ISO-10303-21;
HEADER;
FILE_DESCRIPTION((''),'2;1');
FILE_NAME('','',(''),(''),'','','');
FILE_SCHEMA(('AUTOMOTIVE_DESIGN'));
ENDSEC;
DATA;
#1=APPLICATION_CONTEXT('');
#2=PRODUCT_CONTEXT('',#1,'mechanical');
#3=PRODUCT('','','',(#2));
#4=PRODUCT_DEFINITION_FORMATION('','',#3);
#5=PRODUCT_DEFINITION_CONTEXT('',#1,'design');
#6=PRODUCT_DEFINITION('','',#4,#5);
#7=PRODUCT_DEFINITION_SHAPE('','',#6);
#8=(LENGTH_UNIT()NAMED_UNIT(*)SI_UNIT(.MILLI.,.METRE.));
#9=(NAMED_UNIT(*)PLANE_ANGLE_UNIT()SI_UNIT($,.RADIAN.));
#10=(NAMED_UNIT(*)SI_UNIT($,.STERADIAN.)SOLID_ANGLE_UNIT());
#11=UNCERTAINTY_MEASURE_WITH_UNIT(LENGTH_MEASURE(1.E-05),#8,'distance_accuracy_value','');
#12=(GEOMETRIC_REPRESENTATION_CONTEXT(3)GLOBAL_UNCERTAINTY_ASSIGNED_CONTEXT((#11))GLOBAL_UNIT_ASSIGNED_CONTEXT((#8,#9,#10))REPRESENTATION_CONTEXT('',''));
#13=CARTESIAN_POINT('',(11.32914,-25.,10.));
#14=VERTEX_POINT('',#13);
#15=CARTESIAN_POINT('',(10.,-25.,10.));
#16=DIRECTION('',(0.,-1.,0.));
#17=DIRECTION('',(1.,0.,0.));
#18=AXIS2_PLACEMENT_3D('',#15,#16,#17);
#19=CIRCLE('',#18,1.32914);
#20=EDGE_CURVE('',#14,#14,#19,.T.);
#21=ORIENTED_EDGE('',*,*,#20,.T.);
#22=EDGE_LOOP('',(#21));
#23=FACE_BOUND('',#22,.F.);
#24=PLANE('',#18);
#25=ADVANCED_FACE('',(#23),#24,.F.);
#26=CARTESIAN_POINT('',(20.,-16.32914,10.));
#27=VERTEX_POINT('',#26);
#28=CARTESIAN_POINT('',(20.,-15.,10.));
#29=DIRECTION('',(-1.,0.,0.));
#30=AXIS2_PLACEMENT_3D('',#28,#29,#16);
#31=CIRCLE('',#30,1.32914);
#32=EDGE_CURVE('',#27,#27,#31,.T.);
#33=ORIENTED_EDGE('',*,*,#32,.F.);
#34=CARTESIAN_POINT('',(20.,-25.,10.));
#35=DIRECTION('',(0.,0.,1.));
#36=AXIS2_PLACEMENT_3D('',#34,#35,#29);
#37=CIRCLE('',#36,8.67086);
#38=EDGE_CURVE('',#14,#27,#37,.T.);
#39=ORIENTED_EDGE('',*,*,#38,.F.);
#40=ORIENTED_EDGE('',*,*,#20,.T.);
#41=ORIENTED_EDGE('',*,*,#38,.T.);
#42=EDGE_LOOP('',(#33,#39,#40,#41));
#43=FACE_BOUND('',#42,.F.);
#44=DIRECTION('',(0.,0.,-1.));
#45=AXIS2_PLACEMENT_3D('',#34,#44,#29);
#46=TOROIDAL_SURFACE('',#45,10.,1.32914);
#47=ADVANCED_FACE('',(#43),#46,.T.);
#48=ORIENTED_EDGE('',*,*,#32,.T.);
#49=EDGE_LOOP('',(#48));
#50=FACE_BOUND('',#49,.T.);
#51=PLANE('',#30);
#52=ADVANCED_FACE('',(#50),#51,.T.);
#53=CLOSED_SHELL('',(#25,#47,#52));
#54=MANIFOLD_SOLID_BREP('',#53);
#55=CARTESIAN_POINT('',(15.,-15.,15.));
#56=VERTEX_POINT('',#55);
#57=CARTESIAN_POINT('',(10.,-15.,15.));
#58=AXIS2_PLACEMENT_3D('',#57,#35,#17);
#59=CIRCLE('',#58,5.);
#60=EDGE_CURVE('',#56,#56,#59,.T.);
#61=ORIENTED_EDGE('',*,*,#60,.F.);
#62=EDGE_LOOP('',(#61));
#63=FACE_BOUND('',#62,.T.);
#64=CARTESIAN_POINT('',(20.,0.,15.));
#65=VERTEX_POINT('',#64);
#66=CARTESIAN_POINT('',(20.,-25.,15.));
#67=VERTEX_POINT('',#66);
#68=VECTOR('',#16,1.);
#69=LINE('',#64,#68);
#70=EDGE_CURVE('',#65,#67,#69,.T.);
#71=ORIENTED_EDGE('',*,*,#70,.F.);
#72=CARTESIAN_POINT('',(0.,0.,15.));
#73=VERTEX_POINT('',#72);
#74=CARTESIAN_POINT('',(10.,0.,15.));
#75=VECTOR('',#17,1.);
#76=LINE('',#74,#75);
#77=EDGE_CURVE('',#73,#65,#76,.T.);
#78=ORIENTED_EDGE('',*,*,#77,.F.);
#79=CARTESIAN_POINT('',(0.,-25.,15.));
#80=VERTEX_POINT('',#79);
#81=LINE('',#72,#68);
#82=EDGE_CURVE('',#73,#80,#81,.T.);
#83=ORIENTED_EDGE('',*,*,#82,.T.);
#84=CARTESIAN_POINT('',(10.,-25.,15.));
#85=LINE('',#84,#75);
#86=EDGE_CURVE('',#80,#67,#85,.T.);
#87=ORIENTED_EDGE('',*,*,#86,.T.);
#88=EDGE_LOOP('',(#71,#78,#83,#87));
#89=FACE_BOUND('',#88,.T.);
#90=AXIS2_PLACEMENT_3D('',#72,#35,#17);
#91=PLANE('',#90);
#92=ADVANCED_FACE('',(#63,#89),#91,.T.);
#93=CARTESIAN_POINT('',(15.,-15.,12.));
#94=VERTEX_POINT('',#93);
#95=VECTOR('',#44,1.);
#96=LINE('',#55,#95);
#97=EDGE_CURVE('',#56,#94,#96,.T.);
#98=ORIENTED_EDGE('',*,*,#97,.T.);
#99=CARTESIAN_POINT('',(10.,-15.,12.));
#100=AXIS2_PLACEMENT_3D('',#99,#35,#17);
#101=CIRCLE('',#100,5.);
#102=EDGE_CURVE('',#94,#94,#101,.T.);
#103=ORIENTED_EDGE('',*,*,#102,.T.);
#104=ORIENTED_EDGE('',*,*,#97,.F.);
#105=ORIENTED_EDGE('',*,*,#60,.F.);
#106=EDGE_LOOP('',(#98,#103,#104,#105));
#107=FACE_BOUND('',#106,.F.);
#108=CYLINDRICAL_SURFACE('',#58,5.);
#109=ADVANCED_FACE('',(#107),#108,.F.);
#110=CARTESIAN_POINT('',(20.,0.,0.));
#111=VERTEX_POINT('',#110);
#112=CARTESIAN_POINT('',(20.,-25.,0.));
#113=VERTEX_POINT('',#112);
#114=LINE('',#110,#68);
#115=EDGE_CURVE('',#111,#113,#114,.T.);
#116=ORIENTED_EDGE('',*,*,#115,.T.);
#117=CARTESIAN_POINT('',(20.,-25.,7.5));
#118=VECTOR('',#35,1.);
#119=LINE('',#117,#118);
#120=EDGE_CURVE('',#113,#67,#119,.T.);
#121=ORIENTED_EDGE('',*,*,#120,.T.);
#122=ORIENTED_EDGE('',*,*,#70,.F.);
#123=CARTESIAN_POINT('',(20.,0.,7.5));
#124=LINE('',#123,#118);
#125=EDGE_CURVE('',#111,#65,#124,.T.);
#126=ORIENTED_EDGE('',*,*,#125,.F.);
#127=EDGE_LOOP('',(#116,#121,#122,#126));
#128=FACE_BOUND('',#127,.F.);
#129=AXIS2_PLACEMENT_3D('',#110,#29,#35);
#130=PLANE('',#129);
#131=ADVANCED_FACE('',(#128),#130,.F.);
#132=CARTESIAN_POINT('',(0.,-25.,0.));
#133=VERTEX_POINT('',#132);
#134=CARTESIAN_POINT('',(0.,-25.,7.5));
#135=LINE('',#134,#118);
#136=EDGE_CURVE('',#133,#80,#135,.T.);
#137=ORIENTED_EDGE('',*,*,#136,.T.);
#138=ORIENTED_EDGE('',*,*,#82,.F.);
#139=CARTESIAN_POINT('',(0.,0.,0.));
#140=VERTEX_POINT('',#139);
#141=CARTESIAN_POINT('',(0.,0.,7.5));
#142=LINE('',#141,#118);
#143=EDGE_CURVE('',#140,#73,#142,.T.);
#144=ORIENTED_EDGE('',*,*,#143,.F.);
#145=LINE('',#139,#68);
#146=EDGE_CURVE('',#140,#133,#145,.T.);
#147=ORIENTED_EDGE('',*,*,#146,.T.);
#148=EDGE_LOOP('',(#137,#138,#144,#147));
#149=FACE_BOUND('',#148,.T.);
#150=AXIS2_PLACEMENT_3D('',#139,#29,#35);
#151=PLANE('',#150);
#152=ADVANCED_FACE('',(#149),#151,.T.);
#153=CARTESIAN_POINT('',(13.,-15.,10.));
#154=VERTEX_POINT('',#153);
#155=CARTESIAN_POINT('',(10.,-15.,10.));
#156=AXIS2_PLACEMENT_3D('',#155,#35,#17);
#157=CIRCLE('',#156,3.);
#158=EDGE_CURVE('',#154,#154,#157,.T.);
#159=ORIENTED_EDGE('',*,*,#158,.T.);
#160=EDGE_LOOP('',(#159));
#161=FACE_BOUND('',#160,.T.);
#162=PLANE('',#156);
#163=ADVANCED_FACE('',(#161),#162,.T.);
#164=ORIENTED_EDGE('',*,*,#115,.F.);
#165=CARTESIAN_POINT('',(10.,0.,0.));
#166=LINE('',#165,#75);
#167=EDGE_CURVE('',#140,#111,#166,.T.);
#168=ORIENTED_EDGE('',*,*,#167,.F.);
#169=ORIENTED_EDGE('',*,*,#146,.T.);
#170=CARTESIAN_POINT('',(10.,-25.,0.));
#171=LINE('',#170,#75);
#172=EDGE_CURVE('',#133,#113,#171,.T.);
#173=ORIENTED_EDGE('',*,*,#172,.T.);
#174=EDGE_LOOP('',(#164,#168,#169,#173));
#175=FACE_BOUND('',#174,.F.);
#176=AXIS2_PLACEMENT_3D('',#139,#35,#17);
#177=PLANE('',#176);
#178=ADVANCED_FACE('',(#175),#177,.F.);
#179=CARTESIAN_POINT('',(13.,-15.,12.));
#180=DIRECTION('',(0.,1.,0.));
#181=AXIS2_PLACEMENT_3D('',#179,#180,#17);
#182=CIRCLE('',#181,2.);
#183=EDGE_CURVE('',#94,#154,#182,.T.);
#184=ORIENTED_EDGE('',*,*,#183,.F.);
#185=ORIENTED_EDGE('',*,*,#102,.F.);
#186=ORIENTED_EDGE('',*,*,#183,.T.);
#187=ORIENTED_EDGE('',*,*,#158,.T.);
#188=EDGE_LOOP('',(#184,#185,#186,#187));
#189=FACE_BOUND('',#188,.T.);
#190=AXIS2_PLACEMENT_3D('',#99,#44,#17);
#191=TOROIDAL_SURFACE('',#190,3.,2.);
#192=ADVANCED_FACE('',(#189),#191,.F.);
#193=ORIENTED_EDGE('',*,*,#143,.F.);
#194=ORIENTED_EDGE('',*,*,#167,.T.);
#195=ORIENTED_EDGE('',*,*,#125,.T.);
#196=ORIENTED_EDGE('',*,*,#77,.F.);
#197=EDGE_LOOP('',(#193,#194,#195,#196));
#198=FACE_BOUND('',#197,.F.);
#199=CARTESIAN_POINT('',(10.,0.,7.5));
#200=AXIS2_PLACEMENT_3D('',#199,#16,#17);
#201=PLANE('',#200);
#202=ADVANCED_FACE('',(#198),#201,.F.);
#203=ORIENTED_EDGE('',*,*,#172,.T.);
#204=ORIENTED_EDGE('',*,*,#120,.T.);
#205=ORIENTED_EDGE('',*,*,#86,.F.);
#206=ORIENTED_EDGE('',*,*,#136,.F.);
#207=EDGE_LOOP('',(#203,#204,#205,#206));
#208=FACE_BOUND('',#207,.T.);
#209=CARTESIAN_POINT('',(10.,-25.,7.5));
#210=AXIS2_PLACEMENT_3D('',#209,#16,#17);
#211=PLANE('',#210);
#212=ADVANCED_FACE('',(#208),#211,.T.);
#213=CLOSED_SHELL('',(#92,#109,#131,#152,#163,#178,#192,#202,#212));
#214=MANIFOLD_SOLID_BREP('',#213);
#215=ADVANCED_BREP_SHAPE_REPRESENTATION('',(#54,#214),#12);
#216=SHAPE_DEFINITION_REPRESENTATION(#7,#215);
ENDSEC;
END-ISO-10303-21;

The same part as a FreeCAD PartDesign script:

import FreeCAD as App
import Part
import Sketcher

V = App.Vector
Q = App.Units.Quantity


def edges_at(feature, points):
    """Names of the edges that pass closest to the given points."""
    edges = feature.Shape.Edges
    near = lambda p: min(range(len(edges)), key=lambda i: edges[i].distToShape(Part.Vertex(*p))[0])
    return sorted({f"Edge{near(p) + 1}" for p in points})

doc = App.newDocument("Part")
body = doc.addObject("PartDesign::Body", "Body")

sketch1 = doc.addObject("Sketcher::SketchObject", "Sketch")
body.addObject(sketch1)
sketch1.AttachmentSupport = (doc.XZ_Plane, [""])
sketch1.MapMode = "FlatFace"
sketch1.addGeometry(Part.LineSegment(V(0, 15, 0), V(0, 0, 0)), False)
sketch1.addGeometry(Part.LineSegment(V(0, 0, 0), V(20, 0, 0)), False)
sketch1.addGeometry(Part.LineSegment(V(20, 0, 0), V(20, 15, 0)), False)
sketch1.addGeometry(Part.LineSegment(V(20, 15, 0), V(0, 15, 0)), False)
sketch1.addConstraint(Sketcher.Constraint("Coincident", 0, 2, 1, 1))
sketch1.addConstraint(Sketcher.Constraint("Coincident", 1, 2, 2, 1))
sketch1.addConstraint(Sketcher.Constraint("Coincident", 2, 2, 3, 1))
sketch1.addConstraint(Sketcher.Constraint("Coincident", 3, 2, 0, 1))
sketch1.addConstraint(Sketcher.Constraint("Vertical", 0))
sketch1.addConstraint(Sketcher.Constraint("Horizontal", 1))
sketch1.addConstraint(Sketcher.Constraint("Vertical", 2))
sketch1.addConstraint(Sketcher.Constraint("Horizontal", 3))
sketch1.addConstraint(Sketcher.Constraint("Coincident", 0, 2, -1, 1))
sketch1.addConstraint(Sketcher.Constraint("DistanceX", 1, 1, 1, 2, Q("20 mm")))
sketch1.addConstraint(Sketcher.Constraint("DistanceY", 0, 2, 0, 1, Q("15 mm")))
pad1 = doc.addObject("PartDesign::Pad", "Pad")
body.addObject(pad1)
pad1.Profile = sketch1
pad1.Length = 25

sketch2 = doc.addObject("Sketcher::SketchObject", "Sketch001")
body.addObject(sketch2)
sketch2.AttachmentSupport = (doc.XY_Plane, [""])
sketch2.MapMode = "FlatFace"
sketch2.AttachmentOffset = App.Placement(V(0, 0, 15), App.Rotation())
sketch2.addGeometry(Part.Circle(V(10, -15, 0), V(0, 0, 1), 5), False)
sketch2.addConstraint(Sketcher.Constraint("Diameter", 0, Q("10 mm")))
sketch2.addConstraint(Sketcher.Constraint("DistanceX", -1, 1, 0, 3, Q("10 mm")))
sketch2.addConstraint(Sketcher.Constraint("DistanceY", 0, 3, -1, 1, Q("15 mm")))
pocket1 = doc.addObject("PartDesign::Pocket", "Pocket")
body.addObject(pocket1)
pocket1.Profile = sketch2
pocket1.Length = 5
doc.recompute()

fillet = doc.addObject("PartDesign::Fillet", "Fillet")
body.addObject(fillet)
fillet.Base = (pocket1, edges_at(pocket1, [(5, -15, 10)]))
fillet.Radius = 2
body2 = doc.addObject("PartDesign::Body", "Body001")

sketch3 = doc.addObject("Sketcher::SketchObject", "Sketch002")
body2.addObject(sketch3)
sketch3.AttachmentSupport = (doc.getObject("XZ_Plane001"), [""])
sketch3.MapMode = "FlatFace"
sketch3.AttachmentOffset = App.Placement(V(0, 0, 25), App.Rotation())
sketch3.addGeometry(Part.Circle(V(10, 10, 0), V(0, 0, 1), 1.3), False)
sketch3.addGeometry(Part.LineSegment(V(20, 10, 0), V(20, 20, 0)), True)
sketch3.addConstraint(Sketcher.Constraint("Vertical", 1))
sketch3.addConstraint(Sketcher.Constraint("Horizontal", 0, 3, 1, 1))
sketch3.addConstraint(Sketcher.Constraint("DistanceY", 1, 1, 1, 2, Q("10 mm")))
sketch3.addConstraint(Sketcher.Constraint("DistanceX", -1, 1, 0, 3, Q("10 mm")))
sketch3.addConstraint(Sketcher.Constraint("DistanceY", -1, 1, 0, 3, Q("10 mm")))
sketch3.addConstraint(Sketcher.Constraint("DistanceX", -1, 1, 1, 1, Q("20 mm")))
sketch3.addConstraint(Sketcher.Constraint("Diameter", 0, Q("2.658281 mm")))
revolution = doc.addObject("PartDesign::Revolution", "Revolution")
body2.addObject(revolution)
revolution.Profile = sketch3
revolution.ReferenceAxis = (sketch3, ["Axis0"])
revolution.Angle = 270

doc.recompute()
